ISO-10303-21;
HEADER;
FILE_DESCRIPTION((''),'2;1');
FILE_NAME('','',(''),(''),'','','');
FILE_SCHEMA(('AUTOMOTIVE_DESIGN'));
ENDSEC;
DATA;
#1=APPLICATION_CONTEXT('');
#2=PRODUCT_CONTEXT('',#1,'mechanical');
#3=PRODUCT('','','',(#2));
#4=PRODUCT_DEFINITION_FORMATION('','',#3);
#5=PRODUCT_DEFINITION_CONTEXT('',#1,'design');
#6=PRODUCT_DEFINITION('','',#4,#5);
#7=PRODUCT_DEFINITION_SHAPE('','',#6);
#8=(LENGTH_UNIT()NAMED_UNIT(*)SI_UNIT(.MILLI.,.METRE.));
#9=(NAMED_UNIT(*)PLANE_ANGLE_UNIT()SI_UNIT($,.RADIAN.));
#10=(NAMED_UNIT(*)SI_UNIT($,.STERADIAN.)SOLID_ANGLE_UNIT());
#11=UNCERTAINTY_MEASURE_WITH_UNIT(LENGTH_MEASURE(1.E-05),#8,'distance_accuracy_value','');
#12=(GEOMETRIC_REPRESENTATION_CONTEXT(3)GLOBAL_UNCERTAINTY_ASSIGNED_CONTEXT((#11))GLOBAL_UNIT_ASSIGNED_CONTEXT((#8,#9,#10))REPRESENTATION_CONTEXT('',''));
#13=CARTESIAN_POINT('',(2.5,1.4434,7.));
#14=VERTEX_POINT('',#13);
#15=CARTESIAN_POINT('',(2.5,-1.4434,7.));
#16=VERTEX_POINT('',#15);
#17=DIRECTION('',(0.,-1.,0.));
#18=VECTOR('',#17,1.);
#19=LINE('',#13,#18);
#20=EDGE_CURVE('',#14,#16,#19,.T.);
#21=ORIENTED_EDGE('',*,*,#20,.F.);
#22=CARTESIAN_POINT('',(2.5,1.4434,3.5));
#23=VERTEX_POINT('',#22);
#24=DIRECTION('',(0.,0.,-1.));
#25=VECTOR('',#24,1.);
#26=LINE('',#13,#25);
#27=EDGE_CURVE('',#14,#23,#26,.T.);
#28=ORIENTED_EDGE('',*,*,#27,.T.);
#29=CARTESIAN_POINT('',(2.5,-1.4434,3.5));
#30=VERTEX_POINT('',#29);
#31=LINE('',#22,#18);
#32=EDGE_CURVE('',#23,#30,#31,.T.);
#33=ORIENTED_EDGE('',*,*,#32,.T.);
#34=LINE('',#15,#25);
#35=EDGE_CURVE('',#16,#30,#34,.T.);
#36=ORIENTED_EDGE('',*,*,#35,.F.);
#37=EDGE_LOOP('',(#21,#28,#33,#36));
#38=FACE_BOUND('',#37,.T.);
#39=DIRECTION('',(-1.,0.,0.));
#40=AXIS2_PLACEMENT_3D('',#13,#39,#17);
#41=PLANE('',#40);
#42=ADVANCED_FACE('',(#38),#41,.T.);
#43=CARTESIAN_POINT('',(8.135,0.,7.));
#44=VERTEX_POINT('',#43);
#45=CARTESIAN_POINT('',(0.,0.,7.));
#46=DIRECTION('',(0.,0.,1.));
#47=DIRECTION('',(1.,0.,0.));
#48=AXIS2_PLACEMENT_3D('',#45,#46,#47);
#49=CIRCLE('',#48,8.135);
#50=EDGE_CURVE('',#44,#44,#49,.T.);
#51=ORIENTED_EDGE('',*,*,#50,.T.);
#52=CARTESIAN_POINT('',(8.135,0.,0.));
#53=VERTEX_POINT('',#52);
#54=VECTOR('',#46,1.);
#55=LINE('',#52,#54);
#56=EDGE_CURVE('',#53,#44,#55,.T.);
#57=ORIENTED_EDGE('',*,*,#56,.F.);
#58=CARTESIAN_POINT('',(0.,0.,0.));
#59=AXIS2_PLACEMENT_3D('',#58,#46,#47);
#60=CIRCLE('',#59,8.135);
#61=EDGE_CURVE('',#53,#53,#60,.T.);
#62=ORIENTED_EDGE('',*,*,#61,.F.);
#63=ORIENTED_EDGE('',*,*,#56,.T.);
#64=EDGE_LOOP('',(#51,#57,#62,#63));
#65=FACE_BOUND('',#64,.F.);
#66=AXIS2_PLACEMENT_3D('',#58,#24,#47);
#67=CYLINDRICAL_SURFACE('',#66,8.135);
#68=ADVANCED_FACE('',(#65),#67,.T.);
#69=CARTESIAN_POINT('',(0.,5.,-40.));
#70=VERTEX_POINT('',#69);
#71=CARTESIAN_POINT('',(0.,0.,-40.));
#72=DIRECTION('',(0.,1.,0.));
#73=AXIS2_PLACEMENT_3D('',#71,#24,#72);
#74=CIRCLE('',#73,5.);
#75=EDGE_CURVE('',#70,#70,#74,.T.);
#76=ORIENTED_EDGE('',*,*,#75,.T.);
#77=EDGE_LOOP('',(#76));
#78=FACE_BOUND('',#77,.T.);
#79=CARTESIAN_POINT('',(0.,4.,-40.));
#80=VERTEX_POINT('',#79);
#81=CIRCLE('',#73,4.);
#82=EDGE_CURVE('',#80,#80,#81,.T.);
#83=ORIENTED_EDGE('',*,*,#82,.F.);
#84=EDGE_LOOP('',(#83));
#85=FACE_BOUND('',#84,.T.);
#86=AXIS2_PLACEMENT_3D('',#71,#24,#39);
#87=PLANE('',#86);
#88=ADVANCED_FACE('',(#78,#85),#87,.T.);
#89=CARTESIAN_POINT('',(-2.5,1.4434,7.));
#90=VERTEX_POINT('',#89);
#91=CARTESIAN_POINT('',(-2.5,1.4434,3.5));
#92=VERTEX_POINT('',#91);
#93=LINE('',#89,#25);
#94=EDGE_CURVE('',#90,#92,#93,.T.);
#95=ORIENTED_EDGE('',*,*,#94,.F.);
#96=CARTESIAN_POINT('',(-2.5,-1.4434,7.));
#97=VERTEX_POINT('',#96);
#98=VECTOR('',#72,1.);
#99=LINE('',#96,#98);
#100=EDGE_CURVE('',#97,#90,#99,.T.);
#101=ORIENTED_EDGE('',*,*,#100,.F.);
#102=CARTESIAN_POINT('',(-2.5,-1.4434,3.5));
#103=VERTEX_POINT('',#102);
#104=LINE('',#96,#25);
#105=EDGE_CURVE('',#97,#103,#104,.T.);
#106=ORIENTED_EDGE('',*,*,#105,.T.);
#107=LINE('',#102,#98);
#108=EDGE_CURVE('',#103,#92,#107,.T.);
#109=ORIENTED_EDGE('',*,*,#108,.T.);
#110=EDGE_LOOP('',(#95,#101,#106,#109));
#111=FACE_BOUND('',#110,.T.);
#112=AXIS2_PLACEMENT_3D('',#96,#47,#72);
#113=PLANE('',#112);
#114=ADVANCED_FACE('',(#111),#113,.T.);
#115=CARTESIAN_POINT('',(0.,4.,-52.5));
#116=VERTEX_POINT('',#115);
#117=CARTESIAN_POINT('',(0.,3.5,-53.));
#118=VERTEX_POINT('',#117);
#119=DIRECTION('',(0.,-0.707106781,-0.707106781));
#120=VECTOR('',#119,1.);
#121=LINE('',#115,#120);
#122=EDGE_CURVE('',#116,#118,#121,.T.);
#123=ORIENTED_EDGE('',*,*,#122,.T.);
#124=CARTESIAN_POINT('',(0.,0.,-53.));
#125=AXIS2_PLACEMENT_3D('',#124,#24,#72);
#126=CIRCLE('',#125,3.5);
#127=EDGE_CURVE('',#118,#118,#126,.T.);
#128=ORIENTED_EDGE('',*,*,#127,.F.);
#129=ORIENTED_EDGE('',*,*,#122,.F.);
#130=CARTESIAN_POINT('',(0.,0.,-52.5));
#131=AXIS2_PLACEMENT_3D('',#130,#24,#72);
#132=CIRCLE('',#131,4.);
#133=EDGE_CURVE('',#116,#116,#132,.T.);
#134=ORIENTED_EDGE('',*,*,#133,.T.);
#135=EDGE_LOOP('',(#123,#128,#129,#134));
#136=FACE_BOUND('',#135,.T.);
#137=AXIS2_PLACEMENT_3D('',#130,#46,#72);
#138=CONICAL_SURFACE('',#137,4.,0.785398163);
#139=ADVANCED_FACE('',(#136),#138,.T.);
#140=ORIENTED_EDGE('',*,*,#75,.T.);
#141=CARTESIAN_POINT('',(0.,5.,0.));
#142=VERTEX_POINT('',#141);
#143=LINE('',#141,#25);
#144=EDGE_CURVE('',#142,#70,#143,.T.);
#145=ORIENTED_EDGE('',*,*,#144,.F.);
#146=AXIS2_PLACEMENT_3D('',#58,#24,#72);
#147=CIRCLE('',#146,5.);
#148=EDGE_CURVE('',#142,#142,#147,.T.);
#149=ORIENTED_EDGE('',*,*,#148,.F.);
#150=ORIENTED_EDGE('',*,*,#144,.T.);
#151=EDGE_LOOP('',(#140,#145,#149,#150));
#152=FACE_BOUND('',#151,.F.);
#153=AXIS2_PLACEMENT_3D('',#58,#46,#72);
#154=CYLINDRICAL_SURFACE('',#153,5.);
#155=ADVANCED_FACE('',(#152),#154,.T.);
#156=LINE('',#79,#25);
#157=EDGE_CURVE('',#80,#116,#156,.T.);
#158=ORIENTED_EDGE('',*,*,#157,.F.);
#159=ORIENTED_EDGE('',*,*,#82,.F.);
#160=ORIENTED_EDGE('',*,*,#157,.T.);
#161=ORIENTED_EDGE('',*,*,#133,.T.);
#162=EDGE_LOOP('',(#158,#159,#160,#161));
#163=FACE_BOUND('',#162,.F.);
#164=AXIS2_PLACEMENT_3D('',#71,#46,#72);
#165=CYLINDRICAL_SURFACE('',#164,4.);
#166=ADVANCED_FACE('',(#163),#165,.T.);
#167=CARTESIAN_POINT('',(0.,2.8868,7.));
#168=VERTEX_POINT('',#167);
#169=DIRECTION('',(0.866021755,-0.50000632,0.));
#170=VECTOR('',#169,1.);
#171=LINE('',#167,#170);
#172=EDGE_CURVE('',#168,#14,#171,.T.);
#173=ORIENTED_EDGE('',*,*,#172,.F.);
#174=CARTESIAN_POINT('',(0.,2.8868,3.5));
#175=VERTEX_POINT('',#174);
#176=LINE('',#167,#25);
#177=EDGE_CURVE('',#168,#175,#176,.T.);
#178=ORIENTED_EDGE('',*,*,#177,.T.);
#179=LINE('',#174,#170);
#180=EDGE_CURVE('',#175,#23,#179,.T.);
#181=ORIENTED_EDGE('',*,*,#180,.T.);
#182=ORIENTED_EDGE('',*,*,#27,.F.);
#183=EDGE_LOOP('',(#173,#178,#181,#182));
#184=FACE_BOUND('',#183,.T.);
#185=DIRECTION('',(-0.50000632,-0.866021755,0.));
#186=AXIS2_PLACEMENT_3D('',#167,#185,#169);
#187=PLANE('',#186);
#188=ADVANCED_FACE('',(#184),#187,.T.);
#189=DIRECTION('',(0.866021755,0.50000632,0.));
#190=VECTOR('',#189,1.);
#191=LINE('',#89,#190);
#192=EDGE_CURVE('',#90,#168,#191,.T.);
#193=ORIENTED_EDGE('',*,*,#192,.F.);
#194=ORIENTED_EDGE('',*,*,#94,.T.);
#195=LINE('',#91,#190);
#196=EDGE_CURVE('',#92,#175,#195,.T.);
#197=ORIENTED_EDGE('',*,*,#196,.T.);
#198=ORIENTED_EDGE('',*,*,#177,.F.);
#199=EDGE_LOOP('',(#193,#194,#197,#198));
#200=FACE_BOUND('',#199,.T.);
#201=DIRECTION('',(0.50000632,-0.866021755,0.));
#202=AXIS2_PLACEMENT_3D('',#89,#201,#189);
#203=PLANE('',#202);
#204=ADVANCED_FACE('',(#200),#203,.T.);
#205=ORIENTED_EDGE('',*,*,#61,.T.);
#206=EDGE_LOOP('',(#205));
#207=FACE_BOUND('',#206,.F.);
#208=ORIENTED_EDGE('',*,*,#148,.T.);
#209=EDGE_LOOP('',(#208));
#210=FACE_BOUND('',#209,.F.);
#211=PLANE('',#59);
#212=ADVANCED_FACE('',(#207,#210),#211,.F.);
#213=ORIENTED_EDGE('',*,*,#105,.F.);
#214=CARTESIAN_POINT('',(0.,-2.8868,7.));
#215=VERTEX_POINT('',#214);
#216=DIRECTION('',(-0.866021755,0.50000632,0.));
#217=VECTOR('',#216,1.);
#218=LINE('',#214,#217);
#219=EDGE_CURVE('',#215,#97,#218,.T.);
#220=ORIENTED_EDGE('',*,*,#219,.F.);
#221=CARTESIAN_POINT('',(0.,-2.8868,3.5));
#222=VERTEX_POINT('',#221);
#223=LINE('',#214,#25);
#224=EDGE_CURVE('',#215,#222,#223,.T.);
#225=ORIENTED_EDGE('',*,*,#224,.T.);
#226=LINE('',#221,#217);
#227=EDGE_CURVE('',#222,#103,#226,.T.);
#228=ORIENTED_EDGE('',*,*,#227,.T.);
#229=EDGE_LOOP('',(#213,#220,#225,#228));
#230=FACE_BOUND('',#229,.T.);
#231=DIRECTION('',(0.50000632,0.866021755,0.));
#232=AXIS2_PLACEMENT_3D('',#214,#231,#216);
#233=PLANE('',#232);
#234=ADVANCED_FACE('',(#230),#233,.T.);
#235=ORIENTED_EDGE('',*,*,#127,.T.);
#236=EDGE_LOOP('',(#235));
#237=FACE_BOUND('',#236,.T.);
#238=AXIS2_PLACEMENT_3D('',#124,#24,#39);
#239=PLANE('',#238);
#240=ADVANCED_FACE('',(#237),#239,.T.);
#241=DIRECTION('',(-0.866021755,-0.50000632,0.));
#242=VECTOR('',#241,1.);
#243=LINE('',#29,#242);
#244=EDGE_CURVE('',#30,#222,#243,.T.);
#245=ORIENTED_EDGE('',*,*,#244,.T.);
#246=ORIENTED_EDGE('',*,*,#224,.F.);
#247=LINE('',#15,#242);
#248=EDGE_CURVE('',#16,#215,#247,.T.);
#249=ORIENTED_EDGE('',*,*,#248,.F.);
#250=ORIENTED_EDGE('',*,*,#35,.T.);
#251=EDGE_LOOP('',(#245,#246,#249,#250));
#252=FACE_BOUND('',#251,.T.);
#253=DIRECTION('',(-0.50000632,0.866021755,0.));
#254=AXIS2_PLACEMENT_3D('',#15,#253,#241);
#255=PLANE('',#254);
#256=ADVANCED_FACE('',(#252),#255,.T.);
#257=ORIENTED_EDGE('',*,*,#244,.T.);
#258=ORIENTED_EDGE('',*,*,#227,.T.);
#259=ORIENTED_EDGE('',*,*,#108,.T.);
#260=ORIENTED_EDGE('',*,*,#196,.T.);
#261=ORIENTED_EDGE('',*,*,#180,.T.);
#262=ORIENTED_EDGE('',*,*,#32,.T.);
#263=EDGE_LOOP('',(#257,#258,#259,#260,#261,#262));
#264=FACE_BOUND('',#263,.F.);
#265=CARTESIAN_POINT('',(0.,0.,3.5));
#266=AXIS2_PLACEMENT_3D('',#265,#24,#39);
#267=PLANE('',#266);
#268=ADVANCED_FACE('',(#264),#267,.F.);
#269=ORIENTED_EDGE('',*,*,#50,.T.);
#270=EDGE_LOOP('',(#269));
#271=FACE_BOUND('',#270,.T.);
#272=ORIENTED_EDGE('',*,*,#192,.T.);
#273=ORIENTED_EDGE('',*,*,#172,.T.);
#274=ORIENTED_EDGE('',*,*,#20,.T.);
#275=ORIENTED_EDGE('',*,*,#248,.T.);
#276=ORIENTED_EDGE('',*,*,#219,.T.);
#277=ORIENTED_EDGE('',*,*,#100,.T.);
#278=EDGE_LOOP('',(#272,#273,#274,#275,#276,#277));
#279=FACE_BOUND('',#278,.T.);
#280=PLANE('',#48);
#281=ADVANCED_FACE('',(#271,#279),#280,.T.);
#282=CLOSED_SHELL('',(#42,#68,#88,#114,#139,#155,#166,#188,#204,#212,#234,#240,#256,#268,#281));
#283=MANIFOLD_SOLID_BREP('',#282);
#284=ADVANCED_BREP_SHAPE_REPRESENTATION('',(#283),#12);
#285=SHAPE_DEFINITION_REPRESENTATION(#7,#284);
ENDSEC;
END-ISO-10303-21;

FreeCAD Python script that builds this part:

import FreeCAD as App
import Part
import Sketcher
Q = App.Units.Quantity


def edges_at(feature, points):
    """Names of the edges that pass closest to the given points."""
    edges = feature.Shape.Edges
    near = lambda p: min(range(len(edges)), key=lambda i: edges[i].distToShape(Part.Vertex(*p))[0])
    return sorted({f"Edge{near(p) + 1}" for p in points})


def add_polygon(sketch, points):
    """Adds a closed chain of lines whose ends are joined by coincident constraints."""
    first, n = sketch.GeometryCount, len(points)
    for a, b in zip(points, points[1:] + points[:1]):
        sketch.addGeometry(Part.LineSegment(App.Vector(*a, 0), App.Vector(*b, 0)), False)
    for i in range(n):
        sketch.addConstraint(Sketcher.Constraint("Coincident", first + i, 2, first + (i + 1) % n, 1))

doc = App.newDocument("Part")
body = doc.addObject("PartDesign::Body", "Body")

# Sketch on XY plane
sketch1 = body.newObject("Sketcher::SketchObject", "Sketch")
sketch1.AttachmentSupport = (doc.getObject("XY_Plane"), [""])
sketch1.MapMode = "FlatFace"
sketch1.addGeometry(Part.Circle(App.Vector(0, 0, 0), App.Vector(0, 0, 1), 8), False)
sketch1.addConstraint([
    Sketcher.Constraint("Coincident", 0, 3, -1, 1),
    Sketcher.Constraint("Diameter", 0, 16.27),
])
pad1 = body.newObject("PartDesign::Pad", "Pad")
pad1.Profile = sketch1
pad1.Length = 7

# Sketch on XY plane
sketch2 = body.newObject("Sketcher::SketchObject", "Sketch001")
sketch2.AttachmentSupport = (doc.getObject("XY_Plane"), [""])
sketch2.MapMode = "FlatFace"
sketch2.AttachmentOffset = App.Placement(App.Vector(0, 0, 7), App.Rotation())
add_polygon(sketch2, [(-2.5, -1.4), (0, -2.9), (2.5, -1.4), (2.5, 1.4), (0, 2.9), (-2.5, 1.4)])  # lines 0-5
sketch2.addConstraint([
    Sketcher.Constraint("Vertical", 2),
    Sketcher.Constraint("Vertical", 5),
    Sketcher.Constraint("Symmetric", 0, 2, 3, 2, -1, 1),
    Sketcher.Constraint("Symmetric", 1, 2, 4, 2, -1, 1),
    Sketcher.Constraint("PointOnObject", 0, 2, -2),
    Sketcher.Constraint("Parallel", 0, 3),
    Sketcher.Constraint("Horizontal", 2, 2, 4, 2),
    Sketcher.Constraint("Angle", 0, Q("-30.0004 deg")),
    Sketcher.Constraint("DistanceX", 4, 2, 2, 2, 5.0),
    Sketcher.Constraint("DistanceY", 2, 1, 2, 2, 2.8868),
])
pocket1 = body.newObject("PartDesign::Pocket", "Pocket")
pocket1.Profile = sketch2
pocket1.Length = 3.5

# Sketch on XY plane
sketch3 = body.newObject("Sketcher::SketchObject", "Sketch002")
sketch3.AttachmentSupport = (doc.getObject("XY_Plane"), [""])
sketch3.MapMode = "FlatFace"
sketch3.addGeometry(Part.Circle(App.Vector(0, 0, 0), App.Vector(0, 0, 1), 5), False)
sketch3.addConstraint([
    Sketcher.Constraint("Coincident", 0, 3, -1, 1),
    Sketcher.Constraint("Diameter", 0, 10.0),
])
pad2 = body.newObject("PartDesign::Pad", "Pad001")
pad2.Profile = sketch3
pad2.Length = 40
pad2.Reversed = True

# Sketch on XY plane
sketch4 = body.newObject("Sketcher::SketchObject", "Sketch003")
sketch4.AttachmentSupport = (doc.getObject("XY_Plane"), [""])
sketch4.MapMode = "FlatFace"
sketch4.AttachmentOffset = App.Placement(App.Vector(0, 0, -40), App.Rotation())
sketch4.addGeometry(Part.Circle(App.Vector(0, 0, 0), App.Vector(0, 0, 1), 4), False)
sketch4.addConstraint([
    Sketcher.Constraint("Coincident", 0, 3, -1, 1),
    Sketcher.Constraint("Diameter", 0, 8.0),
])
pad3 = body.newObject("PartDesign::Pad", "Pad002")
pad3.Profile = sketch4
pad3.Length = 13
pad3.Reversed = True
doc.recompute()

chamfer = body.newObject("PartDesign::Chamfer", "Chamfer")
chamfer.Base = (pad3, edges_at(pad3, [(0, -4, -53)]))
chamfer.Size = 0.5

doc.recompute()
